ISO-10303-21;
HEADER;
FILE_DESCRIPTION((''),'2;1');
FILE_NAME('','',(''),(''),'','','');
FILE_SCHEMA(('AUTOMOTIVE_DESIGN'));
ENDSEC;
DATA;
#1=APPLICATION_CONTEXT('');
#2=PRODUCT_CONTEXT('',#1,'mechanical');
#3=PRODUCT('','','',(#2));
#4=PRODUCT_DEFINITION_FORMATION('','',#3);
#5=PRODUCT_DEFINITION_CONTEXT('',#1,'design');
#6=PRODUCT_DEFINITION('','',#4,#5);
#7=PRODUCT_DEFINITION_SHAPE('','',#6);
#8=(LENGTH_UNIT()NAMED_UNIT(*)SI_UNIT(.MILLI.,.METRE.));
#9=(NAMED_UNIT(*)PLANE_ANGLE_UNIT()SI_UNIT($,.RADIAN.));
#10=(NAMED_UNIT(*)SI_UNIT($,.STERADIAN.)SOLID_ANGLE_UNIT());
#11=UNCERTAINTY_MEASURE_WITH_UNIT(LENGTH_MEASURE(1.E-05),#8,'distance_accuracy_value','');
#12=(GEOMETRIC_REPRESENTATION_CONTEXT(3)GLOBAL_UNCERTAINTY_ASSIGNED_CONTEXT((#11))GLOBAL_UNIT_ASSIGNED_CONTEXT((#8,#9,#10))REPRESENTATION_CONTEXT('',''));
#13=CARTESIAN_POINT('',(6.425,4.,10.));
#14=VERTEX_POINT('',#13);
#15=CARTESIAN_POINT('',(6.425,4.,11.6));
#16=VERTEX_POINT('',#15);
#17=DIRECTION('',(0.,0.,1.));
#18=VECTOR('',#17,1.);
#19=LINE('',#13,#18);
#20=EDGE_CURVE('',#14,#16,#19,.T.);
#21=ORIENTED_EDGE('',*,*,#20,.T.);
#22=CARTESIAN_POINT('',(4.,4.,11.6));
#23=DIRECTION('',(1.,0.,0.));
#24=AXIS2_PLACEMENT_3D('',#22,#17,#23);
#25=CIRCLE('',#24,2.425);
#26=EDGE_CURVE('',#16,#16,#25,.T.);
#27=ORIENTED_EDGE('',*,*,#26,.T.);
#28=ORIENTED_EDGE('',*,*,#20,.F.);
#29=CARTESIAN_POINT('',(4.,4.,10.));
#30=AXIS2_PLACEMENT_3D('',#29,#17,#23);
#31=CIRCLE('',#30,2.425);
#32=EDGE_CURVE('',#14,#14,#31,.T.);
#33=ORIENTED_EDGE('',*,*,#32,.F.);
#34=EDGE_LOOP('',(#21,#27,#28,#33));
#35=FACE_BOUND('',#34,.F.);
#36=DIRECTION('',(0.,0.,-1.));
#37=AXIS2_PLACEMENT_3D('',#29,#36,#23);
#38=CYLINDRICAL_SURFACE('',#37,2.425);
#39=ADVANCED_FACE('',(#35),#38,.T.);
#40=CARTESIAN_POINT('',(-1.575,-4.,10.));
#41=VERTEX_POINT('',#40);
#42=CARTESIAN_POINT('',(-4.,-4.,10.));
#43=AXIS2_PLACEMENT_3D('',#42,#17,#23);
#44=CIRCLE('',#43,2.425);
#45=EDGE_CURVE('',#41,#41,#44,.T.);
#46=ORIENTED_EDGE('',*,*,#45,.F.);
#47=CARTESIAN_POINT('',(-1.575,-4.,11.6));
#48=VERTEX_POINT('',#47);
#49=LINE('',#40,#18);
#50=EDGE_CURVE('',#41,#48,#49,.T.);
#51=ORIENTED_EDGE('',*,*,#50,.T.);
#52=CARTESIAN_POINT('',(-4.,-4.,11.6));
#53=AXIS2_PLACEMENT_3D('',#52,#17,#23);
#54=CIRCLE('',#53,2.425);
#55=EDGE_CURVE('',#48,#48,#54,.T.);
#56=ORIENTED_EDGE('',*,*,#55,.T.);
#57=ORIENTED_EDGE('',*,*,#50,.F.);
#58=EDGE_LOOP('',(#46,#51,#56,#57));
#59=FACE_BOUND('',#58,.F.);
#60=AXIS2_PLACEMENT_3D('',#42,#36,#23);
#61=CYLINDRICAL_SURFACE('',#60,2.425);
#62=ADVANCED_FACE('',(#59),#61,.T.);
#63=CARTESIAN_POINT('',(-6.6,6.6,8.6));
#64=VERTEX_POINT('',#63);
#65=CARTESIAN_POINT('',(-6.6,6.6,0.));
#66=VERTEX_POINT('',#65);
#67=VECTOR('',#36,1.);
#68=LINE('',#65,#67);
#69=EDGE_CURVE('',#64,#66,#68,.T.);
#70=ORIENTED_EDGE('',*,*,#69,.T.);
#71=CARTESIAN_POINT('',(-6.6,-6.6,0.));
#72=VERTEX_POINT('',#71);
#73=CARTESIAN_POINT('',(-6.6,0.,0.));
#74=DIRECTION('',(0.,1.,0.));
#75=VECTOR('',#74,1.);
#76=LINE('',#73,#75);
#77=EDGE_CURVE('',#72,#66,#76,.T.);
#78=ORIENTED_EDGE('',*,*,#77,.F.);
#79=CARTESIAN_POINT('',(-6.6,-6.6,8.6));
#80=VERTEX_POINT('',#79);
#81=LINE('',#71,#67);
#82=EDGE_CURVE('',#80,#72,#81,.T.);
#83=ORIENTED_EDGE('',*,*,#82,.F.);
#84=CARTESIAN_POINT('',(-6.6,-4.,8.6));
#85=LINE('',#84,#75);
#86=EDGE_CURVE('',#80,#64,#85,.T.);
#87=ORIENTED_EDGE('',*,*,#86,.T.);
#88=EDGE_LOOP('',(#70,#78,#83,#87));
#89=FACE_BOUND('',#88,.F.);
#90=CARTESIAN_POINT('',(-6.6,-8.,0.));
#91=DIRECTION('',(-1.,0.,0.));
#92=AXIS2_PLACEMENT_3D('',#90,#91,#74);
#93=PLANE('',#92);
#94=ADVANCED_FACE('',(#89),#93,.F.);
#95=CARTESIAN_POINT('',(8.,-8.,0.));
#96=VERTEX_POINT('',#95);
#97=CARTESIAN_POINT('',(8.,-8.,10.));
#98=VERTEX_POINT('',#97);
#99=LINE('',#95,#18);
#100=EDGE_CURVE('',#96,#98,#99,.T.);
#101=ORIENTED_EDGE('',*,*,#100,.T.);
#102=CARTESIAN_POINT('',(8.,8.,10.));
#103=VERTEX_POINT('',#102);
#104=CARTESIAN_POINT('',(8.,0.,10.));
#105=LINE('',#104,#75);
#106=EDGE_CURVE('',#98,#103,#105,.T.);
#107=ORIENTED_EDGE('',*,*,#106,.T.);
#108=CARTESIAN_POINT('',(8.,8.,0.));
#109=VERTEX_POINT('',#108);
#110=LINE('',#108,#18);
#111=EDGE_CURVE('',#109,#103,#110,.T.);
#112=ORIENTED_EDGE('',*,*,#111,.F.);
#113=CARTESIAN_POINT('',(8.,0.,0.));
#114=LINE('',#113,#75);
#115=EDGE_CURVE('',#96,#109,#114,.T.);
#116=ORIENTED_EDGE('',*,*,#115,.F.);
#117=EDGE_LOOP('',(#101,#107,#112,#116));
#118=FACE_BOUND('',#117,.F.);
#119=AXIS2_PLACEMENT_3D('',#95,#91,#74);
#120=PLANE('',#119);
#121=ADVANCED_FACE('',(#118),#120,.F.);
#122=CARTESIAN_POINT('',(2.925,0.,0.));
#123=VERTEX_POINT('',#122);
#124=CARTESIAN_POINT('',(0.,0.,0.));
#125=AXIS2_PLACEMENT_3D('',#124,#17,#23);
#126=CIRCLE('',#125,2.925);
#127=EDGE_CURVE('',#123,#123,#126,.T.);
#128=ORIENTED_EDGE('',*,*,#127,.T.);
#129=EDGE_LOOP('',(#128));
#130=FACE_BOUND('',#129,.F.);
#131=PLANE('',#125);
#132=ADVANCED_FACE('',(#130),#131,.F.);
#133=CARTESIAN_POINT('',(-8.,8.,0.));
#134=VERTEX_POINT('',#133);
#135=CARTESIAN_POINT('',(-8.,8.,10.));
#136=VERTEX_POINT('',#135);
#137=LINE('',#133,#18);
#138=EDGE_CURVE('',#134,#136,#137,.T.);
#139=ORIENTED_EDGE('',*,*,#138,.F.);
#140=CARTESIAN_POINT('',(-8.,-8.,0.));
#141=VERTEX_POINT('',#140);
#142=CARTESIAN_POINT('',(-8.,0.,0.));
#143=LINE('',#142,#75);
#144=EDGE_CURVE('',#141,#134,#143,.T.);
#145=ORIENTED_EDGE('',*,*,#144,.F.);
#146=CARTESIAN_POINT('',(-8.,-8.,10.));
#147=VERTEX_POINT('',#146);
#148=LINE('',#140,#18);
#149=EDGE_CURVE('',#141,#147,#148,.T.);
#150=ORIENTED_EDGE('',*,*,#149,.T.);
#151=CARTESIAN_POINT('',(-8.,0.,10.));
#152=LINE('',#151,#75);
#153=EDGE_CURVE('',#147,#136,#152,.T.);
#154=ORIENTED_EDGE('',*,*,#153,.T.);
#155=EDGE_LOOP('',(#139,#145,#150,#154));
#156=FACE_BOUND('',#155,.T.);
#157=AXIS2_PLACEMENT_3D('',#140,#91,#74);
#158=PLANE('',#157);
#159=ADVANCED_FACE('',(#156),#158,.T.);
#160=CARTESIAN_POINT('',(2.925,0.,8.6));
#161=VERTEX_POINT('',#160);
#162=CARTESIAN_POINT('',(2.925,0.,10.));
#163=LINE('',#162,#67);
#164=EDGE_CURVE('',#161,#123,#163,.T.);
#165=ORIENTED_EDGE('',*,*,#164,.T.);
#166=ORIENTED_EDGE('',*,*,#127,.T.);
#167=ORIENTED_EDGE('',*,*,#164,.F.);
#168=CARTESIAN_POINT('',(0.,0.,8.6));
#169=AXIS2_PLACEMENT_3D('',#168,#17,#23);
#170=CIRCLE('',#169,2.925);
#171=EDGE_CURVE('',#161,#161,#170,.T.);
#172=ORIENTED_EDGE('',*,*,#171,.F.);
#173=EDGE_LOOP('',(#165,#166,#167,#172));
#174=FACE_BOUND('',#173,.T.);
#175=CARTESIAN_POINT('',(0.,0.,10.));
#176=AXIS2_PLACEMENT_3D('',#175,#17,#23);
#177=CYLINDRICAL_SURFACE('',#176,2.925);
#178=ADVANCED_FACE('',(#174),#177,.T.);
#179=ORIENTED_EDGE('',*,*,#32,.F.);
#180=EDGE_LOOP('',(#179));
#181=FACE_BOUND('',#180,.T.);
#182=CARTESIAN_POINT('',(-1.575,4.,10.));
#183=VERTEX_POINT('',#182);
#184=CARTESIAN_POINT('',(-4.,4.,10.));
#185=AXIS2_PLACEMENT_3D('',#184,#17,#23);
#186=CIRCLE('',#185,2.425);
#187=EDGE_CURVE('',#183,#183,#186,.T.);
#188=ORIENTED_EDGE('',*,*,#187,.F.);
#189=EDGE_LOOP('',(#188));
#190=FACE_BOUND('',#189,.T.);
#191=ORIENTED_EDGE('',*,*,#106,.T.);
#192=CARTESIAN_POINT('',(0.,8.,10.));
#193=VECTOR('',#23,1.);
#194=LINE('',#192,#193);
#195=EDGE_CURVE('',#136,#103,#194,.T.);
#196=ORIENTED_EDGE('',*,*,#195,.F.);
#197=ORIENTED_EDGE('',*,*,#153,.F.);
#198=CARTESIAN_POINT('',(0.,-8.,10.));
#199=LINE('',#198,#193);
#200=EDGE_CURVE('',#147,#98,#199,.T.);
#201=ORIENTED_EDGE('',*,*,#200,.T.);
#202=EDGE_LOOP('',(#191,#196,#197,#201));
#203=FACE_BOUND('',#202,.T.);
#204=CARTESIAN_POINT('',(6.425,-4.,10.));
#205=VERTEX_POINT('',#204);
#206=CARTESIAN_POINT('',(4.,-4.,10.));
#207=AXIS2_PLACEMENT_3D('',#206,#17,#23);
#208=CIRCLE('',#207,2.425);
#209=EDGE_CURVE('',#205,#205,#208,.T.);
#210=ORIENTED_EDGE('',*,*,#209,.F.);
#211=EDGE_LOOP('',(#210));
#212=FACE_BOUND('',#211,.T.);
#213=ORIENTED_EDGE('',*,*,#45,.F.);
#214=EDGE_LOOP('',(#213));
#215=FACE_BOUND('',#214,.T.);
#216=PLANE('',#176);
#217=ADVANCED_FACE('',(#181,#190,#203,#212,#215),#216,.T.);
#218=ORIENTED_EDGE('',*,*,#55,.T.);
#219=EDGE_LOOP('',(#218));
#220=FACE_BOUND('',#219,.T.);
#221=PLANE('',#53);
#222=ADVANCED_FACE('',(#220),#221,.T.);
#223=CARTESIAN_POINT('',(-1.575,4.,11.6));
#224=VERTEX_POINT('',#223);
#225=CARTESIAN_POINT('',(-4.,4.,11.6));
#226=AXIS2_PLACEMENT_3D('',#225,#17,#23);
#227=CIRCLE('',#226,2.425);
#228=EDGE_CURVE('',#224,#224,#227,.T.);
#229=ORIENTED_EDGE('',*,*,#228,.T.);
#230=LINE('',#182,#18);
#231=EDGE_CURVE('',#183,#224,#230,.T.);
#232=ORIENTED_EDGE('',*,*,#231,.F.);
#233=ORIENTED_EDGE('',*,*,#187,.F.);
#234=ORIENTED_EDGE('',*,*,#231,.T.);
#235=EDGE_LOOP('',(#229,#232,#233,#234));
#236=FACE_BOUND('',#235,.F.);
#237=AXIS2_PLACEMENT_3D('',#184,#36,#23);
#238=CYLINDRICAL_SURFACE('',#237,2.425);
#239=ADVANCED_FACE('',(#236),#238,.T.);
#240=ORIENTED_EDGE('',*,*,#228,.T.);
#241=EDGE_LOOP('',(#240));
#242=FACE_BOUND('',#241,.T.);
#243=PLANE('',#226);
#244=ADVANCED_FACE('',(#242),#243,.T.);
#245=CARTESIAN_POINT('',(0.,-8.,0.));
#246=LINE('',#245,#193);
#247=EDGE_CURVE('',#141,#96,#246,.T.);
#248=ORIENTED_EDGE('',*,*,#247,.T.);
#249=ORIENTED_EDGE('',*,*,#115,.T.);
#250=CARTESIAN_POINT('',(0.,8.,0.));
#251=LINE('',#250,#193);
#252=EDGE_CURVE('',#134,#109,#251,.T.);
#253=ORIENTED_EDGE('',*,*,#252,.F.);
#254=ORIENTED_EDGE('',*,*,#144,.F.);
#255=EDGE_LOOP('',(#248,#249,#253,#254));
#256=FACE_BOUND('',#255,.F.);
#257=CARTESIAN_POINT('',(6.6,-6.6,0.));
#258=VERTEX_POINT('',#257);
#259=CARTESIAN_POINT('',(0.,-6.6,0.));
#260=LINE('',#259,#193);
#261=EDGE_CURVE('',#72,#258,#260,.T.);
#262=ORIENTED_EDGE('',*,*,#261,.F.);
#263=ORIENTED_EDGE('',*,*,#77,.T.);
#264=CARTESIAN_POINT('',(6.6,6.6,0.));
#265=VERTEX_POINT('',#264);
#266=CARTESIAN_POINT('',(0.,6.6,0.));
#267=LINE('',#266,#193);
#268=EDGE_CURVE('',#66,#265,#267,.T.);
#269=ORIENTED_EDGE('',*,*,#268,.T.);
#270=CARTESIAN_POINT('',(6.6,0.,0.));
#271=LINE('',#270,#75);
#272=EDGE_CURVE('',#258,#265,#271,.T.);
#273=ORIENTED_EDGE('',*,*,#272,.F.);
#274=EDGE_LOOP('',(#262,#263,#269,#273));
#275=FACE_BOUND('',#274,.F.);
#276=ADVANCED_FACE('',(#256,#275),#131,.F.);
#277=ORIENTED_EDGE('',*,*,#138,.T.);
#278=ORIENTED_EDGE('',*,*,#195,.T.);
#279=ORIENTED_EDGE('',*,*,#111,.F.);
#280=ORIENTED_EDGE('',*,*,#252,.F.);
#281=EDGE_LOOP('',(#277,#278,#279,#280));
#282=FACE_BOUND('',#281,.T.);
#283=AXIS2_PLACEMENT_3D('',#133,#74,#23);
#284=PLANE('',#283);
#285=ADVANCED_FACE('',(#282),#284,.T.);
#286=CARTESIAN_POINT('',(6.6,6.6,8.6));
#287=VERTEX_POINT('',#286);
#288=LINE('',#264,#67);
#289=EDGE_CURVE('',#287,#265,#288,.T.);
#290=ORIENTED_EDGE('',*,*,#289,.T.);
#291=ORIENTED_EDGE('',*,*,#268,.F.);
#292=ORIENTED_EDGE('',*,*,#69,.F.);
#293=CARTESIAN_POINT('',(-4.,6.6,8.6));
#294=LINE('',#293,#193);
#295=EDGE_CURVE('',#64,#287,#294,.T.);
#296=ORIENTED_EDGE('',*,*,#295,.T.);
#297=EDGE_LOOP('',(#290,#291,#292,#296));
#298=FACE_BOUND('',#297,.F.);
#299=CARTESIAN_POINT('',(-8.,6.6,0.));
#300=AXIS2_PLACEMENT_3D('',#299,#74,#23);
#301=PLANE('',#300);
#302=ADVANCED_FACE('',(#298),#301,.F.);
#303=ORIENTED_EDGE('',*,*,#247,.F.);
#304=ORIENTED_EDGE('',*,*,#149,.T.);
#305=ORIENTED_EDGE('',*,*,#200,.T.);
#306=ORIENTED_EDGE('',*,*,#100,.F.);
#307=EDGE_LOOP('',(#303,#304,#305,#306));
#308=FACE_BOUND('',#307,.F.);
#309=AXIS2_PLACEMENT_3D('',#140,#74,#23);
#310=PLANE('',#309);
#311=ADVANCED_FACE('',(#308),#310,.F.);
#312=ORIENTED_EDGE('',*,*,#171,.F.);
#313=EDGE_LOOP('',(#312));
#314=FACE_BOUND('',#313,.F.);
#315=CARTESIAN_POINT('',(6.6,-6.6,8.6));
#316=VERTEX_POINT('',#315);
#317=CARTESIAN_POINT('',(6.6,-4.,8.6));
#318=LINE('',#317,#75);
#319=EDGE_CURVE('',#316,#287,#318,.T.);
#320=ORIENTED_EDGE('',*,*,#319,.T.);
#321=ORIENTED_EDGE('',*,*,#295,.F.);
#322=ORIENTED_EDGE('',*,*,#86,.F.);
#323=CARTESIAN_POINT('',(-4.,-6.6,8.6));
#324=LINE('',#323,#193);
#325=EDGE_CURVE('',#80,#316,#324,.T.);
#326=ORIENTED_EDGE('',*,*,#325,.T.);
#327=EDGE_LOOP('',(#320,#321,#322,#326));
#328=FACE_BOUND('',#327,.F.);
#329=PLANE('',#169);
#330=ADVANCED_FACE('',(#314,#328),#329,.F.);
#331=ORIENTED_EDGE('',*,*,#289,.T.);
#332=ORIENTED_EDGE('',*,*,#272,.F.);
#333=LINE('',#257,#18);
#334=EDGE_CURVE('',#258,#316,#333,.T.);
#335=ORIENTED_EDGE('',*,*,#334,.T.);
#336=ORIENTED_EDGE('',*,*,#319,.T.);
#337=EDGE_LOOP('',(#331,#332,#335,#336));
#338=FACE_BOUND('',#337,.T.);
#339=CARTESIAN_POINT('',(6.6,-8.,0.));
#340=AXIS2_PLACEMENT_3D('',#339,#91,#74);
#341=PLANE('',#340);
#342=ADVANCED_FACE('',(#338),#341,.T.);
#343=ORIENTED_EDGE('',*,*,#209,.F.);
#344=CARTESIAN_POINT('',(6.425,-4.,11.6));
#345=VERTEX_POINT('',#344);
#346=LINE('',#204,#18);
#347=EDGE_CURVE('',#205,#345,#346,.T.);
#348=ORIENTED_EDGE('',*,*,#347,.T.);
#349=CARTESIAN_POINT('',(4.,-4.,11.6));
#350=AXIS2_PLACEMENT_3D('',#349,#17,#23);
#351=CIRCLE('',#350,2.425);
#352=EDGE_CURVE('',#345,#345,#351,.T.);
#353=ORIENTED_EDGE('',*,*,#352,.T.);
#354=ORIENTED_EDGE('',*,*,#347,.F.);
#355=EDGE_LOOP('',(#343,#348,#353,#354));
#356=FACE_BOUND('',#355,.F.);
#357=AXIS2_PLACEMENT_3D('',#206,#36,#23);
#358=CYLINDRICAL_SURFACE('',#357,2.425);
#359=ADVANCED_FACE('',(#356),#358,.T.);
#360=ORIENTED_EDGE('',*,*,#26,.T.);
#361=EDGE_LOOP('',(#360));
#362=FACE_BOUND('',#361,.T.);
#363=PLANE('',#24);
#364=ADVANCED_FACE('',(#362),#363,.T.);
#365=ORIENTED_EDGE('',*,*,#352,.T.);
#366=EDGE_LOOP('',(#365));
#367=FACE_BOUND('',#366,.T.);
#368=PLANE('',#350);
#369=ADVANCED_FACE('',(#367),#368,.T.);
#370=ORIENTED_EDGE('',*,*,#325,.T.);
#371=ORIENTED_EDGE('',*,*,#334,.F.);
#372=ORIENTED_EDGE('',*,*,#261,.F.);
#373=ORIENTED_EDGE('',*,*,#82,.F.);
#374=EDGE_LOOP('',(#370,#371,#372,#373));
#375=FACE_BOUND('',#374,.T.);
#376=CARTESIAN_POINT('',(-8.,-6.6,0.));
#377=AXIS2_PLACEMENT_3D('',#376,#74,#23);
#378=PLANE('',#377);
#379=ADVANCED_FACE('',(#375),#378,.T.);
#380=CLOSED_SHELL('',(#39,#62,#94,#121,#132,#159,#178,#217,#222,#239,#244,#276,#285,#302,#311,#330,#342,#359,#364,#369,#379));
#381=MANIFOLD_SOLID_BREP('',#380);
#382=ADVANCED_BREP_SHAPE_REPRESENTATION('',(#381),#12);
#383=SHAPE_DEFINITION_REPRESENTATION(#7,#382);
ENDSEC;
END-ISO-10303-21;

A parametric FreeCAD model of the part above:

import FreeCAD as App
import Part
import Sketcher
from FreeCAD import Vector
Q = App.Units.Quantity


def faces_at(feature, points):
    """Names of the faces that lie closest to the given points."""
    faces = feature.Shape.Faces
    near = lambda p: min(range(len(faces)), key=lambda i: faces[i].distToShape(Part.Vertex(*p))[0])
    return sorted({f"Face{near(p) + 1}" for p in points})

doc = App.newDocument("Part")
body = doc.addObject("PartDesign::Body", "Body")

# Sketch on XY plane
sketch1 = body.newObject("Sketcher::SketchObject", "Sketch")
sketch1.AttachmentSupport = (doc.getObject("XY_Plane"), [""])
sketch1.MapMode = "FlatFace"
sketch1.addGeometry([
    Part.LineSegment(Vector(-8, 8, 0), Vector(-8, -8, 0)),
    Part.LineSegment(Vector(-8, -8, 0), Vector(8, -8, 0)),
    Part.LineSegment(Vector(8, -8, 0), Vector(8, 8, 0)),
    Part.LineSegment(Vector(8, 8, 0), Vector(-8, 8, 0)),
], False)
sketch1.addConstraint([
    Sketcher.Constraint("Coincident", 0, 2, 1, 1),
    Sketcher.Constraint("Coincident", 1, 2, 2, 1),
    Sketcher.Constraint("Coincident", 2, 2, 3, 1),
    Sketcher.Constraint("Coincident", 3, 2, 0, 1),
    Sketcher.Constraint("Vertical", 0),
    Sketcher.Constraint("Horizontal", 1),
    Sketcher.Constraint("Vertical", 2),
    Sketcher.Constraint("Horizontal", 3),
    Sketcher.Constraint("Symmetric", 0, 2, 2, 2, -1, 1),
    Sketcher.Constraint("Equal", 3, 0),
    Sketcher.Constraint("DistanceX", 1, 1, 1, 2, Q("16 mm")),
])
pad1 = body.newObject("PartDesign::Pad", "Pad")
pad1.Profile = sketch1
pad1.Length = 10
doc.recompute()

thickness = body.newObject("PartDesign::Thickness", "Thickness")
thickness.Base = (pad1, faces_at(pad1, [(0, 0, 0)]))
thickness.Value = 1.4
thickness.Reversed = True
thickness.Join = "Arc"

# Sketch on XY plane
sketch2 = body.newObject("Sketcher::SketchObject", "Sketch001")
sketch2.AttachmentSupport = (doc.getObject("XY_Plane"), [""])
sketch2.MapMode = "FlatFace"
sketch2.AttachmentOffset = App.Placement(Vector(0, 0, 10), App.Rotation())
sketch2.addGeometry([
    Part.Circle(Vector(-4, -4, 0), Vector(0, 0, 1), 2.4),
    Part.Circle(Vector(-4, 4, 0), Vector(0, 0, 1), 2.4),
    Part.Circle(Vector(4, -4, 0), Vector(0, 0, 1), 2.4),
    Part.Circle(Vector(4, 4, 0), Vector(0, 0, 1), 2.4),
], False)
sketch2.addConstraint([
    Sketcher.Constraint("Equal", 0, 1),
    Sketcher.Constraint("Equal", 1, 2),
    Sketcher.Constraint("Equal", 2, 3),
    Sketcher.Constraint("Symmetric", 1, 3, 2, 3, -1, 1),
    Sketcher.Constraint("Symmetric", 0, 3, 3, 3, -1, 1),
    Sketcher.Constraint("Symmetric", 0, 3, 2, 3, -2),
    Sketcher.Constraint("Diameter", 0, Q("4.85 mm")),
    Sketcher.Constraint("DistanceX", 0, 3, -1, 1, Q("4 mm")),
    Sketcher.Constraint("DistanceY", 0, 3, -1, 1, Q("4 mm")),
])
pad2 = body.newObject("PartDesign::Pad", "Pad001")
pad2.Profile = sketch2
pad2.Length = 1.6

# Sketch on XY plane
sketch3 = body.newObject("Sketcher::SketchObject", "Sketch002")
sketch3.AttachmentSupport = (doc.getObject("XY_Plane"), [""])
sketch3.MapMode = "FlatFace"
sketch3.AttachmentOffset = App.Placement(Vector(0, 0, 10), App.Rotation())
sketch3.addGeometry(Part.Circle(Vector(0, 0, 0), Vector(0, 0, 1), 2.9), False)
sketch3.addConstraint([
    Sketcher.Constraint("Coincident", 0, 3, -1, 1),
    Sketcher.Constraint("Diameter", 0, Q("5.85 mm")),
])
pad3 = body.newObject("PartDesign::Pad", "Pad002")
pad3.Profile = sketch3
pad3.Length = 10
pad3.Reversed = True

doc.recompute()
